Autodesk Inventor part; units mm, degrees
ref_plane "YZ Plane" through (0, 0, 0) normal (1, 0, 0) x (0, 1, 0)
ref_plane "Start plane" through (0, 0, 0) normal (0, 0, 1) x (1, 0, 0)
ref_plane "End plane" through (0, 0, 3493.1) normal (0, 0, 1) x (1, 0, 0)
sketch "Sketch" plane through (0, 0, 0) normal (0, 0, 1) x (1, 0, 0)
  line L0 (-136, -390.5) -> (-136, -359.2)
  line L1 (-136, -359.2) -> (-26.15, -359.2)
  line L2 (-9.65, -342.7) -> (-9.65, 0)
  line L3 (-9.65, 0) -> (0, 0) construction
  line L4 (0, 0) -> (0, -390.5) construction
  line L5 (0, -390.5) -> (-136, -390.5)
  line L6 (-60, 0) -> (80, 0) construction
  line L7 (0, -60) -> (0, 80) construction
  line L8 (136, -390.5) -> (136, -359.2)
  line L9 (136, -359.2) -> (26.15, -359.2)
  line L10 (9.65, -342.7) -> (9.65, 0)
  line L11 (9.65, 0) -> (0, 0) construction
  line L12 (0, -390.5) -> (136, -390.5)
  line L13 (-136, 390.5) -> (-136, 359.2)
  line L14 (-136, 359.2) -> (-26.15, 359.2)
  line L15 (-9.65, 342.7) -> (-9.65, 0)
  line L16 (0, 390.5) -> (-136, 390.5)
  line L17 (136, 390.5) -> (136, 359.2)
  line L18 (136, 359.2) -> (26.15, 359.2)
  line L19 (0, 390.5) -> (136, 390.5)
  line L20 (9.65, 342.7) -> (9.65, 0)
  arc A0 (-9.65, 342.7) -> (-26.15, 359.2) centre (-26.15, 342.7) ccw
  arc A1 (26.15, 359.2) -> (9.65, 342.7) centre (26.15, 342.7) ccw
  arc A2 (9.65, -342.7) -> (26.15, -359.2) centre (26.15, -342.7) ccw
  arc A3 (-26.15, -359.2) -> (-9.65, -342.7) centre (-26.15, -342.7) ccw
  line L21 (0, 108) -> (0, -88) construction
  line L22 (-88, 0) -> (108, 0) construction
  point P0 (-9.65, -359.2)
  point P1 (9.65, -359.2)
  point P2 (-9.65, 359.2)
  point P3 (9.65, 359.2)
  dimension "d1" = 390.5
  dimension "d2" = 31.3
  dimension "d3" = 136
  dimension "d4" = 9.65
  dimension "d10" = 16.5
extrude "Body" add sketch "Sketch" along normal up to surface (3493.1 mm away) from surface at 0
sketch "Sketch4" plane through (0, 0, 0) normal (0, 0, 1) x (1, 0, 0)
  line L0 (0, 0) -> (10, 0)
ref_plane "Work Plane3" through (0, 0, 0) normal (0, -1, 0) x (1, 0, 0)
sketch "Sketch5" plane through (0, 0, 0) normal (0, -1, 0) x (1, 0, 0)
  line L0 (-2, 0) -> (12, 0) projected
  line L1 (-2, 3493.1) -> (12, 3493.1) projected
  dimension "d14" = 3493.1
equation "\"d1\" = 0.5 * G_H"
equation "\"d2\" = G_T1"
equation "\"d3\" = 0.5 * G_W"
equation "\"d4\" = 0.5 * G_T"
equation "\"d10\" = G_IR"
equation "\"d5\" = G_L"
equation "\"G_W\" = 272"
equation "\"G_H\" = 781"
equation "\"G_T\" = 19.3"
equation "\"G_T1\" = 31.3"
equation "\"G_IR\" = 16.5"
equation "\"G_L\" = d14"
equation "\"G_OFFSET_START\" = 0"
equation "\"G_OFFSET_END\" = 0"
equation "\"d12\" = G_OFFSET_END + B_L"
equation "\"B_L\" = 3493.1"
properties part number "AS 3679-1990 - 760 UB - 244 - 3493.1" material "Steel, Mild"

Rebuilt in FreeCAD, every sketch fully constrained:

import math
import FreeCAD as App
import Part
import Sketcher

V = App.Vector
Q = App.Units.Quantity

doc = App.newDocument("Part")
body = doc.addObject("PartDesign::Body", "Body")

# Sketch on XY plane
sketch1 = doc.addObject("Sketcher::SketchObject", "Sketch")
body.addObject(sketch1)
sketch1.AttachmentSupport = (doc.XY_Plane, [""])
sketch1.MapMode = "FlatFace"
sketch1.addGeometry(Part.LineSegment(V(-136, -359, 0), V(-136, -390, 0)), False)
sketch1.addGeometry(Part.LineSegment(V(-136, -390, 0), V(136, -390, 0)), False)
sketch1.addGeometry(Part.LineSegment(V(136, -390, 0), V(136, -359, 0)), False)
sketch1.addGeometry(Part.LineSegment(V(136, -359, 0), V(26, -359, 0)), False)
sketch1.addGeometry(Part.ArcOfCircle(Part.Circle(V(26, -343, 0), V(0, 0, 1), 16), math.radians(180), math.radians(270)), False)
sketch1.addGeometry(Part.LineSegment(V(10, -343, 0), V(10, 343, 0)), False)
sketch1.addGeometry(Part.ArcOfCircle(Part.Circle(V(26, 343, 0), V(0, 0, 1), 16), math.radians(90), math.radians(180)), False)
sketch1.addGeometry(Part.LineSegment(V(26, 359, 0), V(136, 359, 0)), False)
sketch1.addGeometry(Part.LineSegment(V(136, 359, 0), V(136, 390, 0)), False)
sketch1.addGeometry(Part.LineSegment(V(136, 390, 0), V(-136, 390, 0)), False)
sketch1.addGeometry(Part.LineSegment(V(-136, 390, 0), V(-136, 359, 0)), False)
sketch1.addGeometry(Part.LineSegment(V(-136, 359, 0), V(-26, 359, 0)), False)
sketch1.addGeometry(Part.ArcOfCircle(Part.Circle(V(-26, 343, 0), V(0, 0, 1), 16), math.radians(0), math.radians(90)), False)
sketch1.addGeometry(Part.LineSegment(V(-10, 343, 0), V(-10, -343, 0)), False)
sketch1.addGeometry(Part.ArcOfCircle(Part.Circle(V(-26, -343, 0), V(0, 0, 1), 16), math.radians(-90), math.radians(0)), False)
sketch1.addGeometry(Part.LineSegment(V(-26, -359, 0), V(-136, -359, 0)), False)
sketch1.addConstraint(Sketcher.Constraint("Coincident", 0, 2, 1, 1))
sketch1.addConstraint(Sketcher.Constraint("Coincident", 1, 2, 2, 1))
sketch1.addConstraint(Sketcher.Constraint("Coincident", 2, 2, 3, 1))
sketch1.addConstraint(Sketcher.Constraint("Tangent", 3, 2, 4, 2))
sketch1.addConstraint(Sketcher.Constraint("Tangent", 4, 1, 5, 1))
sketch1.addConstraint(Sketcher.Constraint("Tangent", 5, 2, 6, 2))
sketch1.addConstraint(Sketcher.Constraint("Tangent", 6, 1, 7, 1))
sketch1.addConstraint(Sketcher.Constraint("Coincident", 7, 2, 8, 1))
sketch1.addConstraint(Sketcher.Constraint("Coincident", 8, 2, 9, 1))
sketch1.addConstraint(Sketcher.Constraint("Coincident", 9, 2, 10, 1))
sketch1.addConstraint(Sketcher.Constraint("Coincident", 10, 2, 11, 1))
sketch1.addConstraint(Sketcher.Constraint("Tangent", 11, 2, 12, 2))
sketch1.addConstraint(Sketcher.Constraint("Tangent", 12, 1, 13, 1))
sketch1.addConstraint(Sketcher.Constraint("Tangent", 13, 2, 14, 2))
sketch1.addConstraint(Sketcher.Constraint("Tangent", 14, 1, 15, 1))
sketch1.addConstraint(Sketcher.Constraint("Coincident", 15, 2, 0, 1))
sketch1.addConstraint(Sketcher.Constraint("Vertical", 0))
sketch1.addConstraint(Sketcher.Constraint("Horizontal", 1))
sketch1.addConstraint(Sketcher.Constraint("Vertical", 2))
sketch1.addConstraint(Sketcher.Constraint("Horizontal", 3))
sketch1.addConstraint(Sketcher.Constraint("Vertical", 5))
sketch1.addConstraint(Sketcher.Constraint("Horizontal", 7))
sketch1.addConstraint(Sketcher.Constraint("Vertical", 8))
sketch1.addConstraint(Sketcher.Constraint("Horizontal", 9))
sketch1.addConstraint(Sketcher.Constraint("Vertical", 10))
sketch1.addConstraint(Sketcher.Constraint("Horizontal", 11))
sketch1.addConstraint(Sketcher.Constraint("Vertical", 13))
sketch1.addConstraint(Sketcher.Constraint("Horizontal", 15))
sketch1.addConstraint(Sketcher.Constraint("Equal", 4, 6))
sketch1.addConstraint(Sketcher.Constraint("Equal", 6, 12))
sketch1.addConstraint(Sketcher.Constraint("Equal", 12, 14))
sketch1.addConstraint(Sketcher.Constraint("Symmetric", 4, 3, 12, 3, -1, 1))
sketch1.addConstraint(Sketcher.Constraint("Symmetric", 0, 2, 8, 2, -1, 1))
sketch1.addConstraint(Sketcher.Constraint("Symmetric", 7, 2, 10, 2, -2))
sketch1.addConstraint(Sketcher.Constraint("Symmetric", 2, 2, 15, 2, -2))
sketch1.addConstraint(Sketcher.Constraint("Radius", 4, Q("16.5 mm")))
sketch1.addConstraint(Sketcher.Constraint("DistanceY", 0, 2, 0, 1, Q("31.3 mm")))
sketch1.addConstraint(Sketcher.Constraint("DistanceX", 0, 2, -1, 1, Q("136 mm")))
sketch1.addConstraint(Sketcher.Constraint("DistanceY", 0, 2, -1, 1, Q("390.5 mm")))
sketch1.addConstraint(Sketcher.Constraint("DistanceX", -1, 1, 4, 1, Q("9.65 mm")))
pad1 = doc.addObject("PartDesign::Pad", "Pad")
body.addObject(pad1)
pad1.Profile = sketch1
pad1.Length = 3493.1

doc.recompute()
